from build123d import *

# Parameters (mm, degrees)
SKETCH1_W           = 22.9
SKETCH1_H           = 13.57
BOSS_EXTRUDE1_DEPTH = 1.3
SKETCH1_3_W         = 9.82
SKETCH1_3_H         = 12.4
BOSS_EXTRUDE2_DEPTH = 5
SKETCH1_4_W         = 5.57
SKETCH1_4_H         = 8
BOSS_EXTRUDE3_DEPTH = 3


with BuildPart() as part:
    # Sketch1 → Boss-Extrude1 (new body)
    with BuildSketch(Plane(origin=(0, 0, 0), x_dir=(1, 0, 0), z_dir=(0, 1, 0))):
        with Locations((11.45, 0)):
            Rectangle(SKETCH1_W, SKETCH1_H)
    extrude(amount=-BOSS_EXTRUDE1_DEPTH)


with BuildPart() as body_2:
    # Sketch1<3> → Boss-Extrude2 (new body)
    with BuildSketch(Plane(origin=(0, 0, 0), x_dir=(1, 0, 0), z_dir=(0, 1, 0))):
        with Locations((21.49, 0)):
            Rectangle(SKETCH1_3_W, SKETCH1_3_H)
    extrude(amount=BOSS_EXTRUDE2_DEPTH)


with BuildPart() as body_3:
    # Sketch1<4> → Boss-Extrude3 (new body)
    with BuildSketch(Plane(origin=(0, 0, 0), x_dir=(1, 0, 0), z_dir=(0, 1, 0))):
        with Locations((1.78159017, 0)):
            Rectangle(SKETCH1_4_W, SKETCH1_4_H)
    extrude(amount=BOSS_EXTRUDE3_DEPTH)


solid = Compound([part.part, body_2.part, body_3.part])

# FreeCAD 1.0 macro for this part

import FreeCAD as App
import Part
import Sketcher

V = App.Vector
Q = App.Units.Quantity

doc = App.newDocument("Part")
body = doc.addObject("PartDesign::Body", "Body")

sketch1 = body.newObject("Sketcher::SketchObject", "Sketch")
sketch1.AttachmentSupport = (doc.getObject("XZ_Plane"), [""])
sketch1.MapMode = "FlatFace"
sketch1.addGeometry([
    Part.LineSegment(V(0, -7, 0), V(0, 7, 0)),
    Part.LineSegment(V(0, 7, 0), V(23, 7, 0)),
    Part.LineSegment(V(23, 7, 0), V(23, -7, 0)),
    Part.LineSegment(V(23, -7, 0), V(0, -7, 0)),
], False)
sketch1.addConstraint([
    Sketcher.Constraint("Coincident", 0, 2, 1, 1),
    Sketcher.Constraint("Coincident", 1, 2, 2, 1),
    Sketcher.Constraint("Coincident", 2, 2, 3, 1),
    Sketcher.Constraint("Coincident", 3, 2, 0, 1),
    Sketcher.Constraint("Vertical", 0),
    Sketcher.Constraint("Horizontal", 1),
    Sketcher.Constraint("Vertical", 2),
    Sketcher.Constraint("Horizontal", 3),
    Sketcher.Constraint("Symmetric", 0, 2, 3, 2, -1, 1),
    Sketcher.Constraint("DistanceX", 1, 1, 1, 2, Q("22.9 mm")),
    Sketcher.Constraint("DistanceY", 0, 1, 0, 2, Q("13.57 mm")),
])
pad1 = body.newObject("PartDesign::Pad", "Pad")
pad1.Profile = sketch1
pad1.Length = 1.3
body2 = doc.addObject("PartDesign::Body", "Body001")

sketch2 = body2.newObject("Sketcher::SketchObject", "Sketch001")
sketch2.AttachmentSupport = (doc.getObject("XZ_Plane001"), [""])
sketch2.MapMode = "FlatFace"
sketch2.addGeometry([
    Part.LineSegment(V(17, -6, 0), V(17, 6, 0)),
    Part.LineSegment(V(17, 6, 0), V(26, 6, 0)),
    Part.LineSegment(V(26, 6, 0), V(26, -6, 0)),
    Part.LineSegment(V(26, -6, 0), V(17, -6, 0)),
], False)
sketch2.addConstraint([
    Sketcher.Constraint("Coincident", 0, 2, 1, 1),
    Sketcher.Constraint("Coincident", 1, 2, 2, 1),
    Sketcher.Constraint("Coincident", 2, 2, 3, 1),
    Sketcher.Constraint("Coincident", 3, 2, 0, 1),
    Sketcher.Constraint("Vertical", 0),
    Sketcher.Constraint("Horizontal", 1),
    Sketcher.Constraint("Vertical", 2),
    Sketcher.Constraint("Horizontal", 3),
    Sketcher.Constraint("DistanceY", 0, 1, 0, 2, Q("12.4 mm")),
    Sketcher.Constraint("DistanceX", 1, 1, 1, 2, Q("9.82 mm")),
    Sketcher.Constraint("DistanceY", -1, 1, 0, 2, Q("6.2 mm")),
    Sketcher.Constraint("DistanceX", -1, 1, 1, 2, Q("26.4 mm")),
])
pad2 = body2.newObject("PartDesign::Pad", "Pad001")
pad2.Profile = sketch2
pad2.Length = 5
pad2.Reversed = True
body3 = doc.addObject("PartDesign::Body", "Body002")

sketch3 = body3.newObject("Sketcher::SketchObject", "Sketch002")
sketch3.AttachmentSupport = (doc.getObject("XZ_Plane002"), [""])
sketch3.MapMode = "FlatFace"
sketch3.addGeometry([
    Part.LineSegment(V(-1, -4, 0), V(-1, 4, 0)),
    Part.LineSegment(V(-1, 4, 0), V(5, 4, 0)),
    Part.LineSegment(V(5, 4, 0), V(5, -4, 0)),
    Part.LineSegment(V(5, -4, 0), V(-1, -4, 0)),
], False)
sketch3.addConstraint([
    Sketcher.Constraint("Coincident", 0, 2, 1, 1),
    Sketcher.Constraint("Coincident", 1, 2, 2, 1),
    Sketcher.Constraint("Coincident", 2, 2, 3, 1),
    Sketcher.Constraint("Coincident", 3, 2, 0, 1),
    Sketcher.Constraint("Vertical", 0),
    Sketcher.Constraint("Horizontal", 1),
    Sketcher.Constraint("Vertical", 2),
    Sketcher.Constraint("Horizontal", 3),
    Sketcher.Constraint("DistanceY", 0, 1, 0, 2, Q("8 mm")),
    Sketcher.Constraint("DistanceY", -1, 1, 0, 2, Q("4 mm")),
    Sketcher.Constraint("DistanceX", 1, 1, 1, 2, Q("5.57 mm")),
    Sketcher.Constraint("DistanceX", 0, 2, -1, 1, Q("1.00341 mm")),
])
pad3 = body3.newObject("PartDesign::Pad", "Pad002")
pad3.Profile = sketch3
pad3.Length = 3
pad3.Reversed = True

doc.recompute()
